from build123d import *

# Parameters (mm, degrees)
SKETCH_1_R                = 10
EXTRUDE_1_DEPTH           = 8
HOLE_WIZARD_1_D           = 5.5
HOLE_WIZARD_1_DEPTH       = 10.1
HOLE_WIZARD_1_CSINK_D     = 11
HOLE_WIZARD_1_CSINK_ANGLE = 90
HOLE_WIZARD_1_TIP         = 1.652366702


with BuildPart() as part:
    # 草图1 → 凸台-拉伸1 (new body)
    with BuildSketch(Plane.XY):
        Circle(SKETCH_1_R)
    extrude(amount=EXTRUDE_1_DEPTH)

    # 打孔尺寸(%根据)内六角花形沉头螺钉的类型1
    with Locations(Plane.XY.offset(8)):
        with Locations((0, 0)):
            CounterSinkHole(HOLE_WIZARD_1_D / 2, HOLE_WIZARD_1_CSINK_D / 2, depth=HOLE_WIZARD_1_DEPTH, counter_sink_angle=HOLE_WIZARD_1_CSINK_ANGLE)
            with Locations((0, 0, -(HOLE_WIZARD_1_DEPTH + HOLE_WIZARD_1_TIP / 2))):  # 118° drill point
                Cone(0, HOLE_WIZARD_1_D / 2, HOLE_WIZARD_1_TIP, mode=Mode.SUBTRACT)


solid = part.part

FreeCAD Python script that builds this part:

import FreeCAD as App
import Part
import Sketcher
from FreeCAD import Vector

doc = App.newDocument("Part")
body = doc.addObject("PartDesign::Body", "Body")

sketch1 = body.newObject("Sketcher::SketchObject", "Sketch")
sketch1.AttachmentSupport = (doc.getObject("XY_Plane"), [""])
sketch1.MapMode = "FlatFace"
sketch1.addGeometry(Part.Circle(Vector(0, 0, 0), Vector(0, 0, 1), 10), False)
sketch1.addConstraint([
    Sketcher.Constraint("Coincident", 0, 3, -1, 1),
    Sketcher.Constraint("Diameter", 0, 20.0),
])
pad1 = body.newObject("PartDesign::Pad", "Pad")
pad1.Profile = sketch1
pad1.Length = 8

sketch2 = body.newObject("Sketcher::SketchObject", "Sketch001")
sketch2.AttachmentSupport = (doc.getObject("XY_Plane"), [""])
sketch2.MapMode = "FlatFace"
sketch2.AttachmentOffset = App.Placement(Vector(0, 0, 8), App.Rotation())
sketch2.addGeometry(Part.Circle(Vector(0, 0, 0), Vector(0, 0, 1), 2.8), False)
sketch2.addConstraint([
    Sketcher.Constraint("Coincident", 0, 3, -1, 1),
    Sketcher.Constraint("Diameter", 0, 5.5),
])
doc.recompute()
hole = body.newObject("PartDesign::Hole", "Hole")
hole.Profile = sketch2
hole.ThreadType = "None"
hole.Diameter = 5.5
hole.DepthType = "Dimension"
hole.Depth = 10.1
hole.DrillPoint = "Angled"
hole.DrillPointAngle = 118
hole.HoleCutType = "Countersink"
hole.HoleCutDiameter = 11
hole.HoleCutCountersinkAngle = 90

doc.recompute()
